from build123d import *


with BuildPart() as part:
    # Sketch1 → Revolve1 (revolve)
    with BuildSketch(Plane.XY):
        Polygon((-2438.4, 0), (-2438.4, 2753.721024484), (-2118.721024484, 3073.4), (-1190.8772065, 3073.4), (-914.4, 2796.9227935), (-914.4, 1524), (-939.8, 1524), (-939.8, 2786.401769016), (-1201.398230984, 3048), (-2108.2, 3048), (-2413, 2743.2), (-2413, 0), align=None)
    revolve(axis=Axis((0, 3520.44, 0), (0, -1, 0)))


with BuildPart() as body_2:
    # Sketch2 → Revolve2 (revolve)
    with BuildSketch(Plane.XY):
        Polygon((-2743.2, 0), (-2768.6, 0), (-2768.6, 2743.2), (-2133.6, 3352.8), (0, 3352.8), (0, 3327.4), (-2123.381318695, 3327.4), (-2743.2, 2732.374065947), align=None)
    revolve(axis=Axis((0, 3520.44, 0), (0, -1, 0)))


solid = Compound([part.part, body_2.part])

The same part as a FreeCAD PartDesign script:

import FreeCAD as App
import Part
import Sketcher
Q = App.Units.Quantity


def add_polygon(sketch, points):
    """Adds a closed chain of lines whose ends are joined by coincident constraints."""
    first, n = sketch.GeometryCount, len(points)
    for a, b in zip(points, points[1:] + points[:1]):
        sketch.addGeometry(Part.LineSegment(App.Vector(*a, 0), App.Vector(*b, 0)), False)
    for i in range(n):
        sketch.addConstraint(Sketcher.Constraint("Coincident", first + i, 2, first + (i + 1) % n, 1))

doc = App.newDocument("Part")
body = doc.addObject("PartDesign::Body", "Body")

# Sketch on XY plane
sketch1 = body.newObject("Sketcher::SketchObject", "Sketch")
sketch1.AttachmentSupport = (doc.getObject("XY_Plane"), [""])
sketch1.MapMode = "FlatFace"
add_polygon(sketch1, [(-2438.4, 2753.721024), (-2438.4, 0), (-2413, 0), (-2413, 2743.2), (-2108.2, 3048), (-1201.398231, 3048), (-939.8, 2786.401769), (-939.8, 1524), (-914.4, 1524), (-914.4, 2796.922793), (-1190.877207, 3073.4), (-2118.721024, 3073.4)])  # lines 0-11
sketch1.addConstraint(Sketcher.Constraint("Vertical", 0))
sketch1.addConstraint(Sketcher.Constraint("Horizontal", 1))
sketch1.addConstraint(Sketcher.Constraint("Vertical", 2))
sketch1.addConstraint(Sketcher.Constraint("Horizontal", 4))
sketch1.addConstraint(Sketcher.Constraint("Vertical", 6))
sketch1.addConstraint(Sketcher.Constraint("Horizontal", 7))
sketch1.addConstraint(Sketcher.Constraint("Vertical", 8))
sketch1.addConstraint(Sketcher.Constraint("Horizontal", 10))
sketch1.addConstraint(Sketcher.Constraint("PointOnObject", 0, 2, -1))
sketch1.addConstraint(Sketcher.Constraint("Perpendicular", 3, 5))
sketch1.addConstraint(Sketcher.Constraint("Parallel", 5, 9))
sketch1.addConstraint(Sketcher.Constraint("Perpendicular", 9, 11))
sketch1.addConstraint(Sketcher.Constraint("Equal", 1, 7))
sketch1.addConstraint(Sketcher.Constraint("DistanceX", 1, 1, 1, 2, Q("1 in")))
sketch1.addConstraint(Sketcher.Constraint("DistanceY", 2, 1, 2, 2, Q("108 in")))
sketch1.addConstraint(Sketcher.Constraint("DistanceX", 0, 2, -1, 1, Q("96 in")))
sketch1.addConstraint(Sketcher.Constraint("DistanceX", 3, 2, -1, 1, Q("83 in")))
sketch1.addConstraint(Sketcher.Constraint("DistanceY", -1, 1, 3, 2, Q("120 in")))
sketch1.addConstraint(Sketcher.Constraint("DistanceX", 5, 2, -1, 1, Q("37 in")))
sketch1.addConstraint(Sketcher.Constraint("DistanceY", -1, 1, 6, 2, Q("60 in")))
sketch1.addConstraint(Sketcher.Constraint("DistanceY", -1, 1, 9, 2, Q("121 in")))
sketch1.addConstraint(Sketcher.Constraint("DistanceX", 4, 1, 4, 2, Q("906.801769 mm")))
sketch1.addConstraint(Sketcher.Constraint("DistanceX", 10, 2, 10, 1, Q("927.843818 mm")))
sketch1.addConstraint(Sketcher.Constraint("DistanceY", 0, 2, 0, 1, Q("2753.721024 mm")))
revolution = body.newObject("PartDesign::Revolution", "Revolution")
revolution.Profile = sketch1
revolution.ReferenceAxis = (sketch1, ["V_Axis"])
revolution.Angle = 360
body2 = doc.addObject("PartDesign::Body", "Body001")

# Sketch on XY plane
sketch2 = body2.newObject("Sketcher::SketchObject", "Sketch001")
sketch2.AttachmentSupport = (doc.getObject("XY_Plane001"), [""])
sketch2.MapMode = "FlatFace"
add_polygon(sketch2, [(-2768.6, 0), (-2743.2, 0), (-2743.2, 2732.374066), (-2123.381319, 3327.4), (0, 3327.4), (0, 3352.8), (-2133.6, 3352.8), (-2768.6, 2743.2)])  # lines 0-7
sketch2.addConstraint(Sketcher.Constraint("Horizontal", 0))
sketch2.addConstraint(Sketcher.Constraint("Vertical", 1))
sketch2.addConstraint(Sketcher.Constraint("Horizontal", 3))
sketch2.addConstraint(Sketcher.Constraint("Vertical", 4))
sketch2.addConstraint(Sketcher.Constraint("Horizontal", 5))
sketch2.addConstraint(Sketcher.Constraint("Vertical", 7))
sketch2.addConstraint(Sketcher.Constraint("PointOnObject", 0, 2, -1))
sketch2.addConstraint(Sketcher.Constraint("PointOnObject", 3, 2, -2))
sketch2.addConstraint(Sketcher.Constraint("Parallel", 2, 6))
sketch2.addConstraint(Sketcher.Constraint("Equal", 0, 4))
sketch2.addConstraint(Sketcher.Constraint("DistanceX", 0, 1, 0, 2, Q("1 in")))
sketch2.addConstraint(Sketcher.Constraint("DistanceX", 5, 2, 5, 1, Q("84 in")))
sketch2.addConstraint(Sketcher.Constraint("DistanceY", 7, 2, 7, 1, Q("108 in")))
sketch2.addConstraint(Sketcher.Constraint("DistanceX", 0, 2, -1, 1, Q("108 in")))
sketch2.addConstraint(Sketcher.Constraint("DistanceY", -1, 1, 2, 2, Q("131 in")))
sketch2.addConstraint(Sketcher.Constraint("DistanceX", 3, 1, 3, 2, Q("2123.381319 mm")))
revolution2 = body2.newObject("PartDesign::Revolution", "Revolution001")
revolution2.Profile = sketch2
revolution2.ReferenceAxis = (sketch2, ["V_Axis"])
revolution2.Angle = 360

doc.recompute()
